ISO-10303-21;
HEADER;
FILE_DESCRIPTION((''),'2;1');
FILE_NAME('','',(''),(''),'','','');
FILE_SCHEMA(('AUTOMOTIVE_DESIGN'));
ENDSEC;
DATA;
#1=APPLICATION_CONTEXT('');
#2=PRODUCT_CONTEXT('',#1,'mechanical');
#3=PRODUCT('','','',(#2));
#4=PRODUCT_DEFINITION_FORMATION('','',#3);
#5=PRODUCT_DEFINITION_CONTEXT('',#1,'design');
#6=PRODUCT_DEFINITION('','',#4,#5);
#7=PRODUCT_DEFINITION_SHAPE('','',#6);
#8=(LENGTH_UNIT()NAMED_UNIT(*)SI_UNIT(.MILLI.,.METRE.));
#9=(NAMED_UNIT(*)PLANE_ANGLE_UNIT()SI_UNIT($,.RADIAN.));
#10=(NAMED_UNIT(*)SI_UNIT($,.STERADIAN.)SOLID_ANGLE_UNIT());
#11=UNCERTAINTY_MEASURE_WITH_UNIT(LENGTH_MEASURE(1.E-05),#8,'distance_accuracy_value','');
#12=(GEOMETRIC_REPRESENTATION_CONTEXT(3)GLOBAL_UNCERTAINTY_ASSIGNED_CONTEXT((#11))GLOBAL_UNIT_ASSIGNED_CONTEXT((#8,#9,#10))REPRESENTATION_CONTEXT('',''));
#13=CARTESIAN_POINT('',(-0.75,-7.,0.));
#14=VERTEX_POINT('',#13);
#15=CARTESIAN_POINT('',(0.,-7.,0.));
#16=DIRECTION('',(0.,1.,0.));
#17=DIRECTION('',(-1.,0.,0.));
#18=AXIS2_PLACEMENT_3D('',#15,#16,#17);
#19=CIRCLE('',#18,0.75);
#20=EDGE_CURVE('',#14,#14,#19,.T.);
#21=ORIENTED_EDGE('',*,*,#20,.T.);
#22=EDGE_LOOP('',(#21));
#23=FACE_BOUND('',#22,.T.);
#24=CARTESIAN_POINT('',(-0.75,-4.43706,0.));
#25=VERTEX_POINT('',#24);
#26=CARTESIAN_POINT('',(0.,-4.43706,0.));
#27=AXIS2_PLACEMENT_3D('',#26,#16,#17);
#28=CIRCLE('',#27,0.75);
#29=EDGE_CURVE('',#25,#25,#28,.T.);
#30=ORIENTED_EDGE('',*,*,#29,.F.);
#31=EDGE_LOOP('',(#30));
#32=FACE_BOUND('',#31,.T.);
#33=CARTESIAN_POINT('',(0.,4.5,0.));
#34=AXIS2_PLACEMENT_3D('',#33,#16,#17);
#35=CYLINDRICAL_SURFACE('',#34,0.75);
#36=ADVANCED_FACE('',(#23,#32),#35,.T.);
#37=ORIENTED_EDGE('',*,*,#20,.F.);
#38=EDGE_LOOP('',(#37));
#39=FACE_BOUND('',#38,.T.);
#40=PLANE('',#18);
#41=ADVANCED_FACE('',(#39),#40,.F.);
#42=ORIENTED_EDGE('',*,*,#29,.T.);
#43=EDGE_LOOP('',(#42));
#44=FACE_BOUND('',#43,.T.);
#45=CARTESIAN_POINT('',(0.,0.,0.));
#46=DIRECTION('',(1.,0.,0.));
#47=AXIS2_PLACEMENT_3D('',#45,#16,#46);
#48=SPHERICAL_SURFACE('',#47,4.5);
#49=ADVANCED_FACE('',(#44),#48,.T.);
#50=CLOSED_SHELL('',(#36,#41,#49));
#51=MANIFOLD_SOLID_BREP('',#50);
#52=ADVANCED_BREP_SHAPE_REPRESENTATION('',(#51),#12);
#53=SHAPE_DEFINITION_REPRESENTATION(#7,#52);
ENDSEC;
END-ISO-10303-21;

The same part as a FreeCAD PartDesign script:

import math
import FreeCAD as App
import Part
import Sketcher
from FreeCAD import Vector

doc = App.newDocument("Part")
body = doc.addObject("PartDesign::Body", "Body")

sketch1 = doc.addObject("Sketcher::SketchObject", "Sketch")
body.addObject(sketch1)
sketch1.AttachmentSupport = (doc.XY_Plane, [""])
sketch1.MapMode = "FlatFace"
sketch1.addGeometry([
    Part.LineSegment(Vector(0, 4.5, 0), Vector(0, -7, 0)),
    Part.LineSegment(Vector(0, -7, 0), Vector(0.8, -7, 0)),
    Part.LineSegment(Vector(0.8, -7, 0), Vector(0.8, -4.4, 0)),
    Part.ArcOfCircle(Part.Circle(Vector(0, 0, 0), Vector(0, 0, 1), 4.5), math.radians(-80), math.radians(90)),
], False)
sketch1.addConstraint([
    Sketcher.Constraint("Coincident", 0, 2, 1, 1),
    Sketcher.Constraint("Coincident", 1, 2, 2, 1),
    Sketcher.Constraint("Coincident", 2, 2, 3, 1),
    Sketcher.Constraint("Coincident", 3, 2, 0, 1),
    Sketcher.Constraint("Vertical", 0),
    Sketcher.Constraint("Horizontal", 1),
    Sketcher.Constraint("Vertical", 2),
    Sketcher.Constraint("Coincident", 3, 3, -1, 1),
    Sketcher.Constraint("PointOnObject", 0, 2, -2),
    Sketcher.Constraint("Radius", 3, 4.5),
    Sketcher.Constraint("DistanceY", 0, 2, 0, 1, 11.5),
    Sketcher.Constraint("DistanceX", 1, 1, 1, 2, 0.75),
])
revolution = doc.addObject("PartDesign::Revolution", "Revolution")
body.addObject(revolution)
revolution.Profile = sketch1
revolution.ReferenceAxis = (sketch1, ["V_Axis"])
revolution.Angle = 360

doc.recompute()
